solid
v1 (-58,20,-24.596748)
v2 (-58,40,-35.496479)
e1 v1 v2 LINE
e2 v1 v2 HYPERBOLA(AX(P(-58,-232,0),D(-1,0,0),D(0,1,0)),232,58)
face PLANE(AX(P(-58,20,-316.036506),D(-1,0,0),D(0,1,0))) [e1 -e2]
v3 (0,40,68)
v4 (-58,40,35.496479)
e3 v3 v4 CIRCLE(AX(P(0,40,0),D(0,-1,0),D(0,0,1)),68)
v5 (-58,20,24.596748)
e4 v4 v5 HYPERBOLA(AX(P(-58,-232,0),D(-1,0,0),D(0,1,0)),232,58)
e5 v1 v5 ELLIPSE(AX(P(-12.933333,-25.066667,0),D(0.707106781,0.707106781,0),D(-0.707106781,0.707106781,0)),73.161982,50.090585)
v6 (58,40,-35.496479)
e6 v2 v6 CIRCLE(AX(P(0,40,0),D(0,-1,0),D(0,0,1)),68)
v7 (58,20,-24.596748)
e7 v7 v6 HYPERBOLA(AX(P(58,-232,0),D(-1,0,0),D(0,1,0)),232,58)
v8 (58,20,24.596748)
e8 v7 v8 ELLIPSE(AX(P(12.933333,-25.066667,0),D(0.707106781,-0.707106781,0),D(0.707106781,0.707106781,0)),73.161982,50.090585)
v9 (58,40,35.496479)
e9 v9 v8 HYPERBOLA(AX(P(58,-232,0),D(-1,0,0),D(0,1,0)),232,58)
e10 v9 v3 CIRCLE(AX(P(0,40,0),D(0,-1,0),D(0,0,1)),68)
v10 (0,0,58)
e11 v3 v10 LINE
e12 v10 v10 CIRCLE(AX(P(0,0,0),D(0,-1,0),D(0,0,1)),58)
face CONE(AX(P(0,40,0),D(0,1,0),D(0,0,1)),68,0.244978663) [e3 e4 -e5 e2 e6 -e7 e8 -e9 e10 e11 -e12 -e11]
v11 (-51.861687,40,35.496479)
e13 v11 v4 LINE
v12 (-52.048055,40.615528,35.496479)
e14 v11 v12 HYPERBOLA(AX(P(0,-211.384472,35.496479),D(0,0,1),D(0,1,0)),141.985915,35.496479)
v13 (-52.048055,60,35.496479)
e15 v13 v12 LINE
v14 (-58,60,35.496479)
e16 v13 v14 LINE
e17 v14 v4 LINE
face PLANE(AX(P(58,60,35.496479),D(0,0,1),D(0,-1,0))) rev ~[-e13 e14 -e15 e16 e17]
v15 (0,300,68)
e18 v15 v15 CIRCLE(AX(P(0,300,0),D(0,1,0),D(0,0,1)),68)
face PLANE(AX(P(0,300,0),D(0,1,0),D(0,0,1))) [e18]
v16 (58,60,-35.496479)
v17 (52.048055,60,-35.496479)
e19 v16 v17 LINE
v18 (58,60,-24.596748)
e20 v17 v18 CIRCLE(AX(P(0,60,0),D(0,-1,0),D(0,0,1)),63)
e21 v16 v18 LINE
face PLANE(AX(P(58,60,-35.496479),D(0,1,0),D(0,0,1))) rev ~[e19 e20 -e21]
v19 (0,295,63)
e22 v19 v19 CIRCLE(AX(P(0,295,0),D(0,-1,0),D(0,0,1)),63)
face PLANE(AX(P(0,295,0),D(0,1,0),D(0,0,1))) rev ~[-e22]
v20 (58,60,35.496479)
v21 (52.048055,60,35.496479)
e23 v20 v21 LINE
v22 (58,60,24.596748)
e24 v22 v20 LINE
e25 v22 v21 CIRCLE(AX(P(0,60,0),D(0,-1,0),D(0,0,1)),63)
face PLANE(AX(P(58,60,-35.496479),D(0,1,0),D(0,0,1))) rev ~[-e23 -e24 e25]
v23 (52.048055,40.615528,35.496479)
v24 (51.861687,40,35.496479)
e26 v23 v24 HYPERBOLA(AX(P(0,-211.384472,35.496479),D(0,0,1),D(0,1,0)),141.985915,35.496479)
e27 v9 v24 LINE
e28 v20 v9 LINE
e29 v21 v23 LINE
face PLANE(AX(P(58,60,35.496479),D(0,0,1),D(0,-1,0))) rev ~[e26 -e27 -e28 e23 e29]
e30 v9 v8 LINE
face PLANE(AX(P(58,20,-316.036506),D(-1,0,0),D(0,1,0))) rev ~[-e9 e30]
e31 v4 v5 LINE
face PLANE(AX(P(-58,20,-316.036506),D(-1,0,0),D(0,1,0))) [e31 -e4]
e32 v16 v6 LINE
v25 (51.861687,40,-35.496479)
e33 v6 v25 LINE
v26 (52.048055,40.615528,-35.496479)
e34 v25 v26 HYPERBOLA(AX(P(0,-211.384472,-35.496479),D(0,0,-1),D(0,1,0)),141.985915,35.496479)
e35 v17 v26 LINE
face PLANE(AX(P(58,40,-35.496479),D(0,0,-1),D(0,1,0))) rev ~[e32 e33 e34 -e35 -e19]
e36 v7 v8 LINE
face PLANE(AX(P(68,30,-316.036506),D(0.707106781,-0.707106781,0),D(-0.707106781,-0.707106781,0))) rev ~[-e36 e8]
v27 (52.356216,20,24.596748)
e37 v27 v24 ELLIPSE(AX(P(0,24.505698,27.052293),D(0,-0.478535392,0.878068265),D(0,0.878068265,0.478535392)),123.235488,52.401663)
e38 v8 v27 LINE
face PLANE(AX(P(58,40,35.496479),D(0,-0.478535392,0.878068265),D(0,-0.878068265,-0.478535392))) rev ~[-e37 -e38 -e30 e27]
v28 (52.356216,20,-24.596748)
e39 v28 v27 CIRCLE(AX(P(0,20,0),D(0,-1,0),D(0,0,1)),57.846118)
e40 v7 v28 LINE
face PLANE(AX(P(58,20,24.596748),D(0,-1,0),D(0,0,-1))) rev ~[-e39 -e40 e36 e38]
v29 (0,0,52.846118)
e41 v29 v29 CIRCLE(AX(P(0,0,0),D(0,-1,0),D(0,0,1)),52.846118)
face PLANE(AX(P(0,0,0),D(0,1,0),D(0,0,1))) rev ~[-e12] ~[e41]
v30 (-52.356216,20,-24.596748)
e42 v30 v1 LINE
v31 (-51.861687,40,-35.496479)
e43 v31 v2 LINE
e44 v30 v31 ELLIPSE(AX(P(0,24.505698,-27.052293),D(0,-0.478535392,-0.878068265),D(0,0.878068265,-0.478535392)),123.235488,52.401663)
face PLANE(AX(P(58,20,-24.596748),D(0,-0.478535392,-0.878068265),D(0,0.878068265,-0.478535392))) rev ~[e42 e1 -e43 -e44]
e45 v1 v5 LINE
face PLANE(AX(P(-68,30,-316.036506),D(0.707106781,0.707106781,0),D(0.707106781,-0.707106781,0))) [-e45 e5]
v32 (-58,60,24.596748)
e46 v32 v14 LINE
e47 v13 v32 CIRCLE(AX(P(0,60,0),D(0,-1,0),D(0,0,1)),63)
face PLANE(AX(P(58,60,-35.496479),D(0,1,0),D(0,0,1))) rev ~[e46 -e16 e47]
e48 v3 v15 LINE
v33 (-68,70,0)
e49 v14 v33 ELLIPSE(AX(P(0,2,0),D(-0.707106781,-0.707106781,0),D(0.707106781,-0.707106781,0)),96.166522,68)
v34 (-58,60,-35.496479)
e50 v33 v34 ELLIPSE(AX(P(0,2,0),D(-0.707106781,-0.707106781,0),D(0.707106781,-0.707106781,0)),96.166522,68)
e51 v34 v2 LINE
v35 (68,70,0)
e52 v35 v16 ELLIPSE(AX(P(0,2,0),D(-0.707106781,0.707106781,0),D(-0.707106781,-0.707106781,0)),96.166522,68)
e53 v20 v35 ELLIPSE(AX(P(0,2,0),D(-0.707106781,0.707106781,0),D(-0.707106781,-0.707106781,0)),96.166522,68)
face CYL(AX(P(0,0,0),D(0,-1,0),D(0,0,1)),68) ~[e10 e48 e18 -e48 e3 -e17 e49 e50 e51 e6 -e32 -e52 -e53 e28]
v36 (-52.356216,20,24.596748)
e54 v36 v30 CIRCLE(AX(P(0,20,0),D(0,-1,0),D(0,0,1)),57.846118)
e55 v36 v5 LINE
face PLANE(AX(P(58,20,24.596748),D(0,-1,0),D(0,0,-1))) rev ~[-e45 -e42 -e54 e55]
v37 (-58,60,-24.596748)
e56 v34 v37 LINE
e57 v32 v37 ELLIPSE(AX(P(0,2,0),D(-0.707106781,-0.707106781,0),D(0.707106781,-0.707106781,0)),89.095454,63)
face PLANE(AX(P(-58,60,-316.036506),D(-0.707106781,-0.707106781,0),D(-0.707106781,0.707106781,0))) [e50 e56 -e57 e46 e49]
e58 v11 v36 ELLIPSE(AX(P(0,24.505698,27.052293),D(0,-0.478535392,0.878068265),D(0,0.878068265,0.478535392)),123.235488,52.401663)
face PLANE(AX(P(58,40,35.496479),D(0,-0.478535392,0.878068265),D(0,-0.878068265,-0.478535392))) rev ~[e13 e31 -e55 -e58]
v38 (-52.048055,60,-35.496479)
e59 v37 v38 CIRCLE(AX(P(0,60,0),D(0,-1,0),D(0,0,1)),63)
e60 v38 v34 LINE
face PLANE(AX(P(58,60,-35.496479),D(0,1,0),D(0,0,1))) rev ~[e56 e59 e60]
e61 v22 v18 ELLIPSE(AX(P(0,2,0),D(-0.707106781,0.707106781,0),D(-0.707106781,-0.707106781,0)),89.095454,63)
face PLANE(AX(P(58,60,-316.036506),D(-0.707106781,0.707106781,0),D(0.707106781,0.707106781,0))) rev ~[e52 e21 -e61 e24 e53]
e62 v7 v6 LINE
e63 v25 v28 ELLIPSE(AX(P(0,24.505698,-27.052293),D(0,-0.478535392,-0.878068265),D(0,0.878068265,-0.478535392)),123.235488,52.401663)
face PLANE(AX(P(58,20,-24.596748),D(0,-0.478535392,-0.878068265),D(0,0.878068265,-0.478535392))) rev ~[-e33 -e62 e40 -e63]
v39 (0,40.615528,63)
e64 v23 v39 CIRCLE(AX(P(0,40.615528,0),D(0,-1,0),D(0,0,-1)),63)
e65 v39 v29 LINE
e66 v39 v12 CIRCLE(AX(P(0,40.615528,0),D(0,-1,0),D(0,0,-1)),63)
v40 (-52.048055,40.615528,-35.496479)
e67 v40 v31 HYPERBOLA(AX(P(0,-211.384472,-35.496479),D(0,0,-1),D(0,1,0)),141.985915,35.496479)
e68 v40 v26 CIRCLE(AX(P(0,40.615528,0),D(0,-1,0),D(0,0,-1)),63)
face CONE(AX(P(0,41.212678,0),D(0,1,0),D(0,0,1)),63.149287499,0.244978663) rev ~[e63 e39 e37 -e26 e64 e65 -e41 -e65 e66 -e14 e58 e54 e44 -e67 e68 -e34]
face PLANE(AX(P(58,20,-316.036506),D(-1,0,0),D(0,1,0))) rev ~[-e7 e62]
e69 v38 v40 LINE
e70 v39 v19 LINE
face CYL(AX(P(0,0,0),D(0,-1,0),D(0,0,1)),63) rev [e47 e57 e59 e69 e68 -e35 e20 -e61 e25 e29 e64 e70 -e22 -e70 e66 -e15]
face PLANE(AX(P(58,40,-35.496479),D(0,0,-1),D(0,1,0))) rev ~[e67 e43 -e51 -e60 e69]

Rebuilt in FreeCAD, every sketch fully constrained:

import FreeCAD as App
import Part
import Sketcher

V = App.Vector
Q = App.Units.Quantity


def faces_at(feature, points):
    """Names of the faces that lie closest to the given points."""
    faces = feature.Shape.Faces
    near = lambda p: min(range(len(faces)), key=lambda i: faces[i].distToShape(Part.Vertex(*p))[0])
    return sorted({f"Face{near(p) + 1}" for p in points})

doc = App.newDocument("Part")
body = doc.addObject("PartDesign::Body", "Body")

# Sketch on XZ plane
sketch1 = body.newObject("Sketcher::SketchObject", "Sketch")
sketch1.AttachmentSupport = (doc.getObject("XZ_Plane"), [""])
sketch1.MapMode = "FlatFace"
sketch1.addGeometry(Part.Circle(V(0, 0, 0), V(0, 0, 1), 68), False)
sketch1.addConstraint(Sketcher.Constraint("Coincident", 0, 3, -1, 1))
sketch1.addConstraint(Sketcher.Constraint("Diameter", 0, Q("136 mm")))
pad1 = body.newObject("PartDesign::Pad", "Pad")
pad1.Profile = sketch1
pad1.Length = 300
pad1.Reversed = True

# Sketch on XY plane
sketch2 = body.newObject("Sketcher::SketchObject", "Sketch001")
sketch2.AttachmentSupport = (doc.getObject("XY_Plane"), [""])
sketch2.MapMode = "FlatFace"
sketch2.addGeometry(Part.LineSegment(V(-68, 0, 0), V(-58, 0, 0)), False)
sketch2.addGeometry(Part.LineSegment(V(-58, 0, 0), V(-68, 40, 0)), False)
sketch2.addGeometry(Part.LineSegment(V(-68, 40, 0), V(-68, 0, 0)), False)
sketch2.addConstraint(Sketcher.Constraint("Coincident", 0, 2, 1, 1))
sketch2.addConstraint(Sketcher.Constraint("Coincident", 1, 2, 2, 1))
sketch2.addConstraint(Sketcher.Constraint("Coincident", 2, 2, 0, 1))
sketch2.addConstraint(Sketcher.Constraint("Horizontal", 0))
sketch2.addConstraint(Sketcher.Constraint("Vertical", 2))
sketch2.addConstraint(Sketcher.Constraint("PointOnObject", 0, 2, -1))
sketch2.addConstraint(Sketcher.Constraint("DistanceX", 0, 1, 0, 2, Q("10 mm")))
sketch2.addConstraint(Sketcher.Constraint("DistanceY", 2, 2, 2, 1, Q("40 mm")))
sketch2.addConstraint(Sketcher.Constraint("DistanceX", 0, 2, -1, 1, Q("58 mm")))
groove = body.newObject("PartDesign::Groove", "Groove")
groove.Profile = sketch2
groove.ReferenceAxis = (sketch2, ["V_Axis"])
groove.Angle = 360
doc.recompute()

thickness = body.newObject("PartDesign::Thickness", "Thickness")
thickness.Base = (groove, faces_at(groove, [(0, 0, 0)]))
thickness.Value = 5
thickness.Reversed = True
thickness.Join = "Intersection"

# Sketch on XY plane
sketch3 = body.newObject("Sketcher::SketchObject", "Sketch002")
sketch3.AttachmentSupport = (doc.getObject("XY_Plane"), [""])
sketch3.MapMode = "FlatFace"
sketch3.addGeometry(Part.LineSegment(V(-68, 70, 0), V(-68, 30, 0)), False)
sketch3.addGeometry(Part.LineSegment(V(-68, 30, 0), V(-58, 20, 0)), False)
sketch3.addGeometry(Part.LineSegment(V(-58, 20, 0), V(-58, 60, 0)), False)
sketch3.addGeometry(Part.LineSegment(V(-58, 60, 0), V(-68, 70, 0)), False)
sketch3.addGeometry(Part.LineSegment(V(58, 20, 0), V(68, 30, 0)), False)
sketch3.addGeometry(Part.LineSegment(V(68, 30, 0), V(68, 70, 0)), False)
sketch3.addGeometry(Part.LineSegment(V(68, 70, 0), V(58, 60, 0)), False)
sketch3.addGeometry(Part.LineSegment(V(58, 60, 0), V(58, 20, 0)), False)
sketch3.addConstraint(Sketcher.Constraint("Coincident", 0, 2, 1, 1))
sketch3.addConstraint(Sketcher.Constraint("Coincident", 1, 2, 2, 1))
sketch3.addConstraint(Sketcher.Constraint("Coincident", 2, 2, 3, 1))
sketch3.addConstraint(Sketcher.Constraint("Coincident", 3, 2, 0, 1))
sketch3.addConstraint(Sketcher.Constraint("Coincident", 4, 2, 5, 1))
sketch3.addConstraint(Sketcher.Constraint("Coincident", 5, 2, 6, 1))
sketch3.addConstraint(Sketcher.Constraint("Coincident", 6, 2, 7, 1))
sketch3.addConstraint(Sketcher.Constraint("Coincident", 7, 2, 4, 1))
sketch3.addConstraint(Sketcher.Constraint("Vertical", 0))
sketch3.addConstraint(Sketcher.Constraint("Vertical", 2))
sketch3.addConstraint(Sketcher.Constraint("Vertical", 5))
sketch3.addConstraint(Sketcher.Constraint("Vertical", 7))
sketch3.addConstraint(Sketcher.Constraint("Symmetric", 0, 2, 4, 2, -2))
sketch3.addConstraint(Sketcher.Constraint("Symmetric", 2, 2, 6, 2, -2))
sketch3.addConstraint(Sketcher.Constraint("Parallel", 1, 3))
sketch3.addConstraint(Sketcher.Constraint("Perpendicular", 3, 4))
sketch3.addConstraint(Sketcher.Constraint("Parallel", 4, 6))
sketch3.addConstraint(Sketcher.Constraint("Horizontal", 3, 2, 5, 2))
sketch3.addConstraint(Sketcher.Constraint("DistanceY", 0, 2, 0, 1, Q("40 mm")))
sketch3.addConstraint(Sketcher.Constraint("DistanceX", 0, 2, -1, 1, Q("68 mm")))
sketch3.addConstraint(Sketcher.Constraint("DistanceY", -1, 1, 0, 2, Q("30 mm")))
sketch3.addConstraint(Sketcher.Constraint("DistanceX", 1, 2, -1, 1, Q("58 mm")))
pocket1 = body.newObject("PartDesign::Pocket", "Pocket")
pocket1.Profile = sketch3
pocket1.Type = "ThroughAll"
pocket1.Midplane = True

# Sketch on YZ plane
sketch4 = body.newObject("Sketcher::SketchObject", "Sketch003")
sketch4.AttachmentSupport = (doc.getObject("YZ_Plane"), [""])
sketch4.MapMode = "FlatFace"
sketch4.AttachmentOffset = App.Placement(V(0, 0, 58), App.Rotation())
sketch4.addGeometry(Part.LineSegment(V(60, 35.496479, 0), V(60, -35.496479, 0)), False)
sketch4.addGeometry(Part.LineSegment(V(60, -35.496479, 0), V(40, -35.496479, 0)), False)
sketch4.addGeometry(Part.LineSegment(V(40, -35.496479, 0), V(20, -24.596748, 0)), False)
sketch4.addGeometry(Part.LineSegment(V(20, -24.596748, 0), V(20, 24.596748, 0)), False)
sketch4.addGeometry(Part.LineSegment(V(20, 24.596748, 0), V(40, 35.496479, 0)), False)
sketch4.addGeometry(Part.LineSegment(V(40, 35.496479, 0), V(60, 35.496479, 0)), False)
sketch4.addConstraint(Sketcher.Constraint("Coincident", 0, 2, 1, 1))
sketch4.addConstraint(Sketcher.Constraint("Coincident", 1, 2, 2, 1))
sketch4.addConstraint(Sketcher.Constraint("Coincident", 2, 2, 3, 1))
sketch4.addConstraint(Sketcher.Constraint("Coincident", 3, 2, 4, 1))
sketch4.addConstraint(Sketcher.Constraint("Coincident", 4, 2, 5, 1))
sketch4.addConstraint(Sketcher.Constraint("Coincident", 5, 2, 0, 1))
sketch4.addConstraint(Sketcher.Constraint("Vertical", 0))
sketch4.addConstraint(Sketcher.Constraint("Horizontal", 1))
sketch4.addConstraint(Sketcher.Constraint("Vertical", 3))
sketch4.addConstraint(Sketcher.Constraint("Horizontal", 5))
sketch4.addConstraint(Sketcher.Constraint("Symmetric", 1, 2, 4, 2, -1))
sketch4.addConstraint(Sketcher.Constraint("Equal", 2, 4))
sketch4.addConstraint(Sketcher.Constraint("DistanceX", 1, 2, 1, 1, Q("20 mm")))
sketch4.addConstraint(Sketcher.Constraint("DistanceX", -1, 1, 0, 2, Q("60 mm")))
sketch4.addConstraint(Sketcher.Constraint("DistanceX", -1, 1, 2, 2, Q("20 mm")))
sketch4.addConstraint(Sketcher.Constraint("DistanceY", 0, 2, 0, 1, Q("70.992957 mm")))
sketch4.addConstraint(Sketcher.Constraint("DistanceY", 3, 1, 3, 2, Q("49.193496 mm")))
pocket2 = body.newObject("PartDesign::Pocket", "Pocket001")
pocket2.Profile = sketch4
pocket2.Length = 116

doc.recompute()
